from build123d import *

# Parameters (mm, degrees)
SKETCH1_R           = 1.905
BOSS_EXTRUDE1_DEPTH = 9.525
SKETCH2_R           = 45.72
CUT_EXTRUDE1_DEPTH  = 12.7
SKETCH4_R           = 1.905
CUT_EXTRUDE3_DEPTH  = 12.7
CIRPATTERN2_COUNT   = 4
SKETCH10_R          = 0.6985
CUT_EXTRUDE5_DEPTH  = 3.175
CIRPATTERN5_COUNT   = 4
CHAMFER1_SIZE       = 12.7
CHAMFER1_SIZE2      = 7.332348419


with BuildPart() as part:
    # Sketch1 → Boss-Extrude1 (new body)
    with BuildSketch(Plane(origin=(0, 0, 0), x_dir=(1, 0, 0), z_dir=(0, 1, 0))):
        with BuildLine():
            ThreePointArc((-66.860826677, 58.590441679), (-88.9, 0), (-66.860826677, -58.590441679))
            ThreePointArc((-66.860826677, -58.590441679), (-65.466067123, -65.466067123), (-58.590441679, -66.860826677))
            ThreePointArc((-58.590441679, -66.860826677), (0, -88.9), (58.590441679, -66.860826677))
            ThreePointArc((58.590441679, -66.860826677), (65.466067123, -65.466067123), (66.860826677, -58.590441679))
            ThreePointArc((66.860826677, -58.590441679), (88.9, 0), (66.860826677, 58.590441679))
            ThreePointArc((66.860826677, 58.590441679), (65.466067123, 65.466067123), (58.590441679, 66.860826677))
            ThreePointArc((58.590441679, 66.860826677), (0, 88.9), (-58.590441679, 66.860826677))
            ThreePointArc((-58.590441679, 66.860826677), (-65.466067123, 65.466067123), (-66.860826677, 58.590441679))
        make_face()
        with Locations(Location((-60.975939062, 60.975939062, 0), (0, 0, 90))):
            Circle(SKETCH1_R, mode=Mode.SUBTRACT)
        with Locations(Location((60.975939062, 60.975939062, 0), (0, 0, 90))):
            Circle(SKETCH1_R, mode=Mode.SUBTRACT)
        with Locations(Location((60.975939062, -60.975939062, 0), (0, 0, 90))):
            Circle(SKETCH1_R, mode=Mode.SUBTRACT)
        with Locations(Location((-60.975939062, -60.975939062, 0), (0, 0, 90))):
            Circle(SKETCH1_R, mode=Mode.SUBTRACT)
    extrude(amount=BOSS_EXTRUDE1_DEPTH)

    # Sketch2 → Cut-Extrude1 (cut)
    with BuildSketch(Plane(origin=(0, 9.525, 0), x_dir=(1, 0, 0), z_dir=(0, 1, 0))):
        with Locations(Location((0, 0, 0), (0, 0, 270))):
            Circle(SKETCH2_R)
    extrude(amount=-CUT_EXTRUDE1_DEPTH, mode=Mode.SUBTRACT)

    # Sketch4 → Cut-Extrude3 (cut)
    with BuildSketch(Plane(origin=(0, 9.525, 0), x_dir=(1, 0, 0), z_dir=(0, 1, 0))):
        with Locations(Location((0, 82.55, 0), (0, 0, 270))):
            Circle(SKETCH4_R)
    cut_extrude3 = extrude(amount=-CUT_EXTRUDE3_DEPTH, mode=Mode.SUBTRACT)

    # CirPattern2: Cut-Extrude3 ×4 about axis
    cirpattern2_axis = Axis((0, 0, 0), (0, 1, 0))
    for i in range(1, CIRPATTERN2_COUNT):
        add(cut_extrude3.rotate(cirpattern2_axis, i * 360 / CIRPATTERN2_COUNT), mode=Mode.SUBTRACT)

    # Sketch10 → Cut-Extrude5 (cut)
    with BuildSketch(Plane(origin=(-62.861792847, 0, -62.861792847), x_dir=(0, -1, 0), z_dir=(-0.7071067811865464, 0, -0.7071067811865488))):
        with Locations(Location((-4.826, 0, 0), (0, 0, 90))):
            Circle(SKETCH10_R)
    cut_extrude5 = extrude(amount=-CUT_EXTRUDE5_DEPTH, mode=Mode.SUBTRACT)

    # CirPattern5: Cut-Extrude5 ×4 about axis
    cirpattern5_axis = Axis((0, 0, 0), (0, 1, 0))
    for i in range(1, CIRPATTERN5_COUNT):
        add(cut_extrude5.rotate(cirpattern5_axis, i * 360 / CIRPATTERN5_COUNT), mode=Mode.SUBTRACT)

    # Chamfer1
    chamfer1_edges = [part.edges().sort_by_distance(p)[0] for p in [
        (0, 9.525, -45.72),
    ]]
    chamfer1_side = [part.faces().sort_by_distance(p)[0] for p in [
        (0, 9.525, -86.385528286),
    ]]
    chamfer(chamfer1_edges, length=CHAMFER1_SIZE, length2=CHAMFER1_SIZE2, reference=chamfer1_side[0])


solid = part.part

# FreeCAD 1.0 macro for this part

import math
import FreeCAD as App
import Part
import Sketcher
from FreeCAD import Vector
Q = App.Units.Quantity


def edges_at(feature, points):
    """Names of the edges that pass closest to the given points."""
    edges = feature.Shape.Edges
    near = lambda p: min(range(len(edges)), key=lambda i: edges[i].distToShape(Part.Vertex(*p))[0])
    return sorted({f"Edge{near(p) + 1}" for p in points})

doc = App.newDocument("Part")
body = doc.addObject("PartDesign::Body", "Body")

sketch1 = body.newObject("Sketcher::SketchObject", "Sketch")
sketch1.AttachmentSupport = (doc.getObject("XZ_Plane"), [""])
sketch1.MapMode = "FlatFace"
sketch1.addGeometry(Part.ArcOfCircle(Part.Circle(Vector(0, 0, 0), Vector(0, 0, 1), 88.9), math.radians(139), math.radians(221)), False)
sketch1.addGeometry(Part.ArcOfCircle(Part.Circle(Vector(-61, 61, 0), Vector(0, 0, 1), 6.3), math.radians(68), math.radians(202)), False)
sketch1.addGeometry(Part.ArcOfCircle(Part.Circle(Vector(0, 0, 0), Vector(0, 0, 1), 88.9), math.radians(49), math.radians(131)), False)
sketch1.addGeometry(Part.ArcOfCircle(Part.Circle(Vector(61, 61, 0), Vector(0, 0, 1), 6.3), math.radians(-22), math.radians(112)), False)
sketch1.addGeometry(Part.ArcOfCircle(Part.Circle(Vector(0, 0, 0), Vector(0, 0, 1), 88.9), math.radians(-41), math.radians(41)), False)
sketch1.addGeometry(Part.ArcOfCircle(Part.Circle(Vector(61, -61, 0), Vector(0, 0, 1), 6.3), math.radians(-112), math.radians(22)), False)
sketch1.addGeometry(Part.ArcOfCircle(Part.Circle(Vector(0, 0, 0), Vector(0, 0, 1), 88.9), math.radians(-131), math.radians(-49)), False)
sketch1.addGeometry(Part.ArcOfCircle(Part.Circle(Vector(-61, -61, 0), Vector(0, 0, 1), 6.3), math.radians(158), math.radians(292)), False)
sketch1.addGeometry(Part.Circle(Vector(-61, 61, 0), Vector(0, 0, 1), 1.9), False)
sketch1.addGeometry(Part.Circle(Vector(61, 61, 0), Vector(0, 0, 1), 1.9), False)
sketch1.addGeometry(Part.Circle(Vector(-61, -61, 0), Vector(0, 0, 1), 1.9), False)
sketch1.addGeometry(Part.Circle(Vector(61, -61, 0), Vector(0, 0, 1), 1.9), False)
sketch1.addConstraint(Sketcher.Constraint("Coincident", 0, 1, 1, 2))
sketch1.addConstraint(Sketcher.Constraint("Coincident", 1, 1, 2, 2))
sketch1.addConstraint(Sketcher.Constraint("Coincident", 2, 1, 3, 2))
sketch1.addConstraint(Sketcher.Constraint("Coincident", 3, 1, 4, 2))
sketch1.addConstraint(Sketcher.Constraint("Coincident", 4, 1, 5, 2))
sketch1.addConstraint(Sketcher.Constraint("Coincident", 5, 1, 6, 2))
sketch1.addConstraint(Sketcher.Constraint("Coincident", 6, 1, 7, 2))
sketch1.addConstraint(Sketcher.Constraint("Coincident", 7, 1, 0, 2))
sketch1.addConstraint(Sketcher.Constraint("Coincident", 0, 3, -1, 1))
sketch1.addConstraint(Sketcher.Constraint("Coincident", 2, 3, -1, 1))
sketch1.addConstraint(Sketcher.Constraint("Coincident", 4, 3, -1, 1))
sketch1.addConstraint(Sketcher.Constraint("Coincident", 6, 3, -1, 1))
sketch1.addConstraint(Sketcher.Constraint("Coincident", 8, 3, 1, 3))
sketch1.addConstraint(Sketcher.Constraint("Coincident", 9, 3, 3, 3))
sketch1.addConstraint(Sketcher.Constraint("Coincident", 10, 3, 7, 3))
sketch1.addConstraint(Sketcher.Constraint("Coincident", 11, 3, 5, 3))
sketch1.addConstraint(Sketcher.Constraint("Equal", 0, 2))
sketch1.addConstraint(Sketcher.Constraint("Equal", 1, 3))
sketch1.addConstraint(Sketcher.Constraint("Equal", 2, 4))
sketch1.addConstraint(Sketcher.Constraint("Equal", 3, 5))
sketch1.addConstraint(Sketcher.Constraint("Equal", 4, 6))
sketch1.addConstraint(Sketcher.Constraint("Equal", 5, 7))
sketch1.addConstraint(Sketcher.Constraint("Equal", 8, 9))
sketch1.addConstraint(Sketcher.Constraint("Equal", 9, 10))
sketch1.addConstraint(Sketcher.Constraint("Equal", 10, 11))
sketch1.addConstraint(Sketcher.Constraint("Symmetric", 1, 3, 5, 3, -1, 1))
sketch1.addConstraint(Sketcher.Constraint("Symmetric", 3, 3, 7, 3, -1, 1))
sketch1.addConstraint(Sketcher.Constraint("Symmetric", 1, 3, 3, 3, -2))
sketch1.addConstraint(Sketcher.Constraint("Radius", 0, Q("3.5 in")))
sketch1.addConstraint(Sketcher.Constraint("Diameter", 8, Q("0.15 in")))
sketch1.addConstraint(Sketcher.Constraint("Radius", 1, Q("0.25 in")))
sketch1.addConstraint(Sketcher.Constraint("DistanceX", 1, 3, -1, 1, 60.975939))
sketch1.addConstraint(Sketcher.Constraint("DistanceY", -1, 1, 1, 3, 60.975939))
pad1 = body.newObject("PartDesign::Pad", "Pad")
pad1.Profile = sketch1
pad1.Length = Q("0.375 in")
pad1.Reversed = True

sketch2 = body.newObject("Sketcher::SketchObject", "Sketch001")
sketch2.AttachmentSupport = (doc.getObject("XZ_Plane"), [""])
sketch2.MapMode = "FlatFace"
sketch2.AttachmentOffset = App.Placement(Vector(0, 0, -0.375 * 25.4), App.Rotation())
sketch2.addGeometry(Part.Circle(Vector(0, 0, 0), Vector(0, 0, 1), 46), False)
sketch2.addConstraint(Sketcher.Constraint("Coincident", 0, 3, -1, 1))
sketch2.addConstraint(Sketcher.Constraint("Diameter", 0, Q("3.6 in")))
pocket1 = body.newObject("PartDesign::Pocket", "Pocket")
pocket1.Profile = sketch2
pocket1.Length = Q("0.5 in")
pocket1.Reversed = True

sketch3 = body.newObject("Sketcher::SketchObject", "Sketch002")
sketch3.AttachmentSupport = (doc.getObject("XZ_Plane"), [""])
sketch3.MapMode = "FlatFace"
sketch3.AttachmentOffset = App.Placement(Vector(0, 0, -0.375 * 25.4), App.Rotation())
sketch3.addGeometry(Part.Circle(Vector(0, -82.5, 0), Vector(0, 0, 1), 1.9), False)
sketch3.addConstraint(Sketcher.Constraint("PointOnObject", 0, 3, -2))
sketch3.addConstraint(Sketcher.Constraint("Diameter", 0, Q("0.15 in")))
sketch3.addConstraint(Sketcher.Constraint("DistanceY", 0, 3, -1, 1, Q("3.25 in")))
pocket2 = body.newObject("PartDesign::Pocket", "Pocket001")
pocket2.Profile = sketch3
pocket2.Length = Q("0.5 in")
pocket2.Reversed = True
doc.recompute()

polarpattern = body.newObject("PartDesign::PolarPattern", "PolarPattern")
polarpattern.Originals = [pocket2]
polarpattern.Axis = (doc.getObject("Y_Axis"), [""])
polarpattern.Angle = 360
polarpattern.Occurrences = 4
body.Tip = polarpattern

sketch4 = body.newObject("Sketcher::SketchObject", "Sketch003")
sketch4.Placement = App.Placement(Vector(-62.861793, 0, -62.861793), App.Rotation(Vector(0, -1, 0), Vector(-0.707106781, 0, 0.707106781), Vector(-0.707106781, 0, -0.707106781), "ZXY"))
sketch4.addGeometry(Part.Circle(Vector(-4.8, 0, 0), Vector(0, 0, 1), 0.7), False)
sketch4.addConstraint(Sketcher.Constraint("PointOnObject", 0, 3, -1))
sketch4.addConstraint(Sketcher.Constraint("Diameter", 0, Q("0.055 in")))
sketch4.addConstraint(Sketcher.Constraint("DistanceX", 0, 3, -1, 1, Q("0.19 in")))
pocket3 = body.newObject("PartDesign::Pocket", "Pocket002")
pocket3.Profile = sketch4
pocket3.Length = Q("0.125 in")
doc.recompute()

polarpattern2 = body.newObject("PartDesign::PolarPattern", "PolarPattern001")
polarpattern2.Originals = [pocket3]
polarpattern2.Axis = (doc.getObject("Y_Axis"), [""])
polarpattern2.Angle = 360
polarpattern2.Occurrences = 4
body.Tip = polarpattern2
doc.recompute()

chamfer = body.newObject("PartDesign::Chamfer", "Chamfer")
chamfer.Base = (polarpattern2, edges_at(polarpattern2, [(0, 9.525, -45.72)]))
chamfer.ChamferType = "Two distances"
chamfer.Size = Q("0.5 in")
chamfer.Size2 = 7.332348

doc.recompute()
